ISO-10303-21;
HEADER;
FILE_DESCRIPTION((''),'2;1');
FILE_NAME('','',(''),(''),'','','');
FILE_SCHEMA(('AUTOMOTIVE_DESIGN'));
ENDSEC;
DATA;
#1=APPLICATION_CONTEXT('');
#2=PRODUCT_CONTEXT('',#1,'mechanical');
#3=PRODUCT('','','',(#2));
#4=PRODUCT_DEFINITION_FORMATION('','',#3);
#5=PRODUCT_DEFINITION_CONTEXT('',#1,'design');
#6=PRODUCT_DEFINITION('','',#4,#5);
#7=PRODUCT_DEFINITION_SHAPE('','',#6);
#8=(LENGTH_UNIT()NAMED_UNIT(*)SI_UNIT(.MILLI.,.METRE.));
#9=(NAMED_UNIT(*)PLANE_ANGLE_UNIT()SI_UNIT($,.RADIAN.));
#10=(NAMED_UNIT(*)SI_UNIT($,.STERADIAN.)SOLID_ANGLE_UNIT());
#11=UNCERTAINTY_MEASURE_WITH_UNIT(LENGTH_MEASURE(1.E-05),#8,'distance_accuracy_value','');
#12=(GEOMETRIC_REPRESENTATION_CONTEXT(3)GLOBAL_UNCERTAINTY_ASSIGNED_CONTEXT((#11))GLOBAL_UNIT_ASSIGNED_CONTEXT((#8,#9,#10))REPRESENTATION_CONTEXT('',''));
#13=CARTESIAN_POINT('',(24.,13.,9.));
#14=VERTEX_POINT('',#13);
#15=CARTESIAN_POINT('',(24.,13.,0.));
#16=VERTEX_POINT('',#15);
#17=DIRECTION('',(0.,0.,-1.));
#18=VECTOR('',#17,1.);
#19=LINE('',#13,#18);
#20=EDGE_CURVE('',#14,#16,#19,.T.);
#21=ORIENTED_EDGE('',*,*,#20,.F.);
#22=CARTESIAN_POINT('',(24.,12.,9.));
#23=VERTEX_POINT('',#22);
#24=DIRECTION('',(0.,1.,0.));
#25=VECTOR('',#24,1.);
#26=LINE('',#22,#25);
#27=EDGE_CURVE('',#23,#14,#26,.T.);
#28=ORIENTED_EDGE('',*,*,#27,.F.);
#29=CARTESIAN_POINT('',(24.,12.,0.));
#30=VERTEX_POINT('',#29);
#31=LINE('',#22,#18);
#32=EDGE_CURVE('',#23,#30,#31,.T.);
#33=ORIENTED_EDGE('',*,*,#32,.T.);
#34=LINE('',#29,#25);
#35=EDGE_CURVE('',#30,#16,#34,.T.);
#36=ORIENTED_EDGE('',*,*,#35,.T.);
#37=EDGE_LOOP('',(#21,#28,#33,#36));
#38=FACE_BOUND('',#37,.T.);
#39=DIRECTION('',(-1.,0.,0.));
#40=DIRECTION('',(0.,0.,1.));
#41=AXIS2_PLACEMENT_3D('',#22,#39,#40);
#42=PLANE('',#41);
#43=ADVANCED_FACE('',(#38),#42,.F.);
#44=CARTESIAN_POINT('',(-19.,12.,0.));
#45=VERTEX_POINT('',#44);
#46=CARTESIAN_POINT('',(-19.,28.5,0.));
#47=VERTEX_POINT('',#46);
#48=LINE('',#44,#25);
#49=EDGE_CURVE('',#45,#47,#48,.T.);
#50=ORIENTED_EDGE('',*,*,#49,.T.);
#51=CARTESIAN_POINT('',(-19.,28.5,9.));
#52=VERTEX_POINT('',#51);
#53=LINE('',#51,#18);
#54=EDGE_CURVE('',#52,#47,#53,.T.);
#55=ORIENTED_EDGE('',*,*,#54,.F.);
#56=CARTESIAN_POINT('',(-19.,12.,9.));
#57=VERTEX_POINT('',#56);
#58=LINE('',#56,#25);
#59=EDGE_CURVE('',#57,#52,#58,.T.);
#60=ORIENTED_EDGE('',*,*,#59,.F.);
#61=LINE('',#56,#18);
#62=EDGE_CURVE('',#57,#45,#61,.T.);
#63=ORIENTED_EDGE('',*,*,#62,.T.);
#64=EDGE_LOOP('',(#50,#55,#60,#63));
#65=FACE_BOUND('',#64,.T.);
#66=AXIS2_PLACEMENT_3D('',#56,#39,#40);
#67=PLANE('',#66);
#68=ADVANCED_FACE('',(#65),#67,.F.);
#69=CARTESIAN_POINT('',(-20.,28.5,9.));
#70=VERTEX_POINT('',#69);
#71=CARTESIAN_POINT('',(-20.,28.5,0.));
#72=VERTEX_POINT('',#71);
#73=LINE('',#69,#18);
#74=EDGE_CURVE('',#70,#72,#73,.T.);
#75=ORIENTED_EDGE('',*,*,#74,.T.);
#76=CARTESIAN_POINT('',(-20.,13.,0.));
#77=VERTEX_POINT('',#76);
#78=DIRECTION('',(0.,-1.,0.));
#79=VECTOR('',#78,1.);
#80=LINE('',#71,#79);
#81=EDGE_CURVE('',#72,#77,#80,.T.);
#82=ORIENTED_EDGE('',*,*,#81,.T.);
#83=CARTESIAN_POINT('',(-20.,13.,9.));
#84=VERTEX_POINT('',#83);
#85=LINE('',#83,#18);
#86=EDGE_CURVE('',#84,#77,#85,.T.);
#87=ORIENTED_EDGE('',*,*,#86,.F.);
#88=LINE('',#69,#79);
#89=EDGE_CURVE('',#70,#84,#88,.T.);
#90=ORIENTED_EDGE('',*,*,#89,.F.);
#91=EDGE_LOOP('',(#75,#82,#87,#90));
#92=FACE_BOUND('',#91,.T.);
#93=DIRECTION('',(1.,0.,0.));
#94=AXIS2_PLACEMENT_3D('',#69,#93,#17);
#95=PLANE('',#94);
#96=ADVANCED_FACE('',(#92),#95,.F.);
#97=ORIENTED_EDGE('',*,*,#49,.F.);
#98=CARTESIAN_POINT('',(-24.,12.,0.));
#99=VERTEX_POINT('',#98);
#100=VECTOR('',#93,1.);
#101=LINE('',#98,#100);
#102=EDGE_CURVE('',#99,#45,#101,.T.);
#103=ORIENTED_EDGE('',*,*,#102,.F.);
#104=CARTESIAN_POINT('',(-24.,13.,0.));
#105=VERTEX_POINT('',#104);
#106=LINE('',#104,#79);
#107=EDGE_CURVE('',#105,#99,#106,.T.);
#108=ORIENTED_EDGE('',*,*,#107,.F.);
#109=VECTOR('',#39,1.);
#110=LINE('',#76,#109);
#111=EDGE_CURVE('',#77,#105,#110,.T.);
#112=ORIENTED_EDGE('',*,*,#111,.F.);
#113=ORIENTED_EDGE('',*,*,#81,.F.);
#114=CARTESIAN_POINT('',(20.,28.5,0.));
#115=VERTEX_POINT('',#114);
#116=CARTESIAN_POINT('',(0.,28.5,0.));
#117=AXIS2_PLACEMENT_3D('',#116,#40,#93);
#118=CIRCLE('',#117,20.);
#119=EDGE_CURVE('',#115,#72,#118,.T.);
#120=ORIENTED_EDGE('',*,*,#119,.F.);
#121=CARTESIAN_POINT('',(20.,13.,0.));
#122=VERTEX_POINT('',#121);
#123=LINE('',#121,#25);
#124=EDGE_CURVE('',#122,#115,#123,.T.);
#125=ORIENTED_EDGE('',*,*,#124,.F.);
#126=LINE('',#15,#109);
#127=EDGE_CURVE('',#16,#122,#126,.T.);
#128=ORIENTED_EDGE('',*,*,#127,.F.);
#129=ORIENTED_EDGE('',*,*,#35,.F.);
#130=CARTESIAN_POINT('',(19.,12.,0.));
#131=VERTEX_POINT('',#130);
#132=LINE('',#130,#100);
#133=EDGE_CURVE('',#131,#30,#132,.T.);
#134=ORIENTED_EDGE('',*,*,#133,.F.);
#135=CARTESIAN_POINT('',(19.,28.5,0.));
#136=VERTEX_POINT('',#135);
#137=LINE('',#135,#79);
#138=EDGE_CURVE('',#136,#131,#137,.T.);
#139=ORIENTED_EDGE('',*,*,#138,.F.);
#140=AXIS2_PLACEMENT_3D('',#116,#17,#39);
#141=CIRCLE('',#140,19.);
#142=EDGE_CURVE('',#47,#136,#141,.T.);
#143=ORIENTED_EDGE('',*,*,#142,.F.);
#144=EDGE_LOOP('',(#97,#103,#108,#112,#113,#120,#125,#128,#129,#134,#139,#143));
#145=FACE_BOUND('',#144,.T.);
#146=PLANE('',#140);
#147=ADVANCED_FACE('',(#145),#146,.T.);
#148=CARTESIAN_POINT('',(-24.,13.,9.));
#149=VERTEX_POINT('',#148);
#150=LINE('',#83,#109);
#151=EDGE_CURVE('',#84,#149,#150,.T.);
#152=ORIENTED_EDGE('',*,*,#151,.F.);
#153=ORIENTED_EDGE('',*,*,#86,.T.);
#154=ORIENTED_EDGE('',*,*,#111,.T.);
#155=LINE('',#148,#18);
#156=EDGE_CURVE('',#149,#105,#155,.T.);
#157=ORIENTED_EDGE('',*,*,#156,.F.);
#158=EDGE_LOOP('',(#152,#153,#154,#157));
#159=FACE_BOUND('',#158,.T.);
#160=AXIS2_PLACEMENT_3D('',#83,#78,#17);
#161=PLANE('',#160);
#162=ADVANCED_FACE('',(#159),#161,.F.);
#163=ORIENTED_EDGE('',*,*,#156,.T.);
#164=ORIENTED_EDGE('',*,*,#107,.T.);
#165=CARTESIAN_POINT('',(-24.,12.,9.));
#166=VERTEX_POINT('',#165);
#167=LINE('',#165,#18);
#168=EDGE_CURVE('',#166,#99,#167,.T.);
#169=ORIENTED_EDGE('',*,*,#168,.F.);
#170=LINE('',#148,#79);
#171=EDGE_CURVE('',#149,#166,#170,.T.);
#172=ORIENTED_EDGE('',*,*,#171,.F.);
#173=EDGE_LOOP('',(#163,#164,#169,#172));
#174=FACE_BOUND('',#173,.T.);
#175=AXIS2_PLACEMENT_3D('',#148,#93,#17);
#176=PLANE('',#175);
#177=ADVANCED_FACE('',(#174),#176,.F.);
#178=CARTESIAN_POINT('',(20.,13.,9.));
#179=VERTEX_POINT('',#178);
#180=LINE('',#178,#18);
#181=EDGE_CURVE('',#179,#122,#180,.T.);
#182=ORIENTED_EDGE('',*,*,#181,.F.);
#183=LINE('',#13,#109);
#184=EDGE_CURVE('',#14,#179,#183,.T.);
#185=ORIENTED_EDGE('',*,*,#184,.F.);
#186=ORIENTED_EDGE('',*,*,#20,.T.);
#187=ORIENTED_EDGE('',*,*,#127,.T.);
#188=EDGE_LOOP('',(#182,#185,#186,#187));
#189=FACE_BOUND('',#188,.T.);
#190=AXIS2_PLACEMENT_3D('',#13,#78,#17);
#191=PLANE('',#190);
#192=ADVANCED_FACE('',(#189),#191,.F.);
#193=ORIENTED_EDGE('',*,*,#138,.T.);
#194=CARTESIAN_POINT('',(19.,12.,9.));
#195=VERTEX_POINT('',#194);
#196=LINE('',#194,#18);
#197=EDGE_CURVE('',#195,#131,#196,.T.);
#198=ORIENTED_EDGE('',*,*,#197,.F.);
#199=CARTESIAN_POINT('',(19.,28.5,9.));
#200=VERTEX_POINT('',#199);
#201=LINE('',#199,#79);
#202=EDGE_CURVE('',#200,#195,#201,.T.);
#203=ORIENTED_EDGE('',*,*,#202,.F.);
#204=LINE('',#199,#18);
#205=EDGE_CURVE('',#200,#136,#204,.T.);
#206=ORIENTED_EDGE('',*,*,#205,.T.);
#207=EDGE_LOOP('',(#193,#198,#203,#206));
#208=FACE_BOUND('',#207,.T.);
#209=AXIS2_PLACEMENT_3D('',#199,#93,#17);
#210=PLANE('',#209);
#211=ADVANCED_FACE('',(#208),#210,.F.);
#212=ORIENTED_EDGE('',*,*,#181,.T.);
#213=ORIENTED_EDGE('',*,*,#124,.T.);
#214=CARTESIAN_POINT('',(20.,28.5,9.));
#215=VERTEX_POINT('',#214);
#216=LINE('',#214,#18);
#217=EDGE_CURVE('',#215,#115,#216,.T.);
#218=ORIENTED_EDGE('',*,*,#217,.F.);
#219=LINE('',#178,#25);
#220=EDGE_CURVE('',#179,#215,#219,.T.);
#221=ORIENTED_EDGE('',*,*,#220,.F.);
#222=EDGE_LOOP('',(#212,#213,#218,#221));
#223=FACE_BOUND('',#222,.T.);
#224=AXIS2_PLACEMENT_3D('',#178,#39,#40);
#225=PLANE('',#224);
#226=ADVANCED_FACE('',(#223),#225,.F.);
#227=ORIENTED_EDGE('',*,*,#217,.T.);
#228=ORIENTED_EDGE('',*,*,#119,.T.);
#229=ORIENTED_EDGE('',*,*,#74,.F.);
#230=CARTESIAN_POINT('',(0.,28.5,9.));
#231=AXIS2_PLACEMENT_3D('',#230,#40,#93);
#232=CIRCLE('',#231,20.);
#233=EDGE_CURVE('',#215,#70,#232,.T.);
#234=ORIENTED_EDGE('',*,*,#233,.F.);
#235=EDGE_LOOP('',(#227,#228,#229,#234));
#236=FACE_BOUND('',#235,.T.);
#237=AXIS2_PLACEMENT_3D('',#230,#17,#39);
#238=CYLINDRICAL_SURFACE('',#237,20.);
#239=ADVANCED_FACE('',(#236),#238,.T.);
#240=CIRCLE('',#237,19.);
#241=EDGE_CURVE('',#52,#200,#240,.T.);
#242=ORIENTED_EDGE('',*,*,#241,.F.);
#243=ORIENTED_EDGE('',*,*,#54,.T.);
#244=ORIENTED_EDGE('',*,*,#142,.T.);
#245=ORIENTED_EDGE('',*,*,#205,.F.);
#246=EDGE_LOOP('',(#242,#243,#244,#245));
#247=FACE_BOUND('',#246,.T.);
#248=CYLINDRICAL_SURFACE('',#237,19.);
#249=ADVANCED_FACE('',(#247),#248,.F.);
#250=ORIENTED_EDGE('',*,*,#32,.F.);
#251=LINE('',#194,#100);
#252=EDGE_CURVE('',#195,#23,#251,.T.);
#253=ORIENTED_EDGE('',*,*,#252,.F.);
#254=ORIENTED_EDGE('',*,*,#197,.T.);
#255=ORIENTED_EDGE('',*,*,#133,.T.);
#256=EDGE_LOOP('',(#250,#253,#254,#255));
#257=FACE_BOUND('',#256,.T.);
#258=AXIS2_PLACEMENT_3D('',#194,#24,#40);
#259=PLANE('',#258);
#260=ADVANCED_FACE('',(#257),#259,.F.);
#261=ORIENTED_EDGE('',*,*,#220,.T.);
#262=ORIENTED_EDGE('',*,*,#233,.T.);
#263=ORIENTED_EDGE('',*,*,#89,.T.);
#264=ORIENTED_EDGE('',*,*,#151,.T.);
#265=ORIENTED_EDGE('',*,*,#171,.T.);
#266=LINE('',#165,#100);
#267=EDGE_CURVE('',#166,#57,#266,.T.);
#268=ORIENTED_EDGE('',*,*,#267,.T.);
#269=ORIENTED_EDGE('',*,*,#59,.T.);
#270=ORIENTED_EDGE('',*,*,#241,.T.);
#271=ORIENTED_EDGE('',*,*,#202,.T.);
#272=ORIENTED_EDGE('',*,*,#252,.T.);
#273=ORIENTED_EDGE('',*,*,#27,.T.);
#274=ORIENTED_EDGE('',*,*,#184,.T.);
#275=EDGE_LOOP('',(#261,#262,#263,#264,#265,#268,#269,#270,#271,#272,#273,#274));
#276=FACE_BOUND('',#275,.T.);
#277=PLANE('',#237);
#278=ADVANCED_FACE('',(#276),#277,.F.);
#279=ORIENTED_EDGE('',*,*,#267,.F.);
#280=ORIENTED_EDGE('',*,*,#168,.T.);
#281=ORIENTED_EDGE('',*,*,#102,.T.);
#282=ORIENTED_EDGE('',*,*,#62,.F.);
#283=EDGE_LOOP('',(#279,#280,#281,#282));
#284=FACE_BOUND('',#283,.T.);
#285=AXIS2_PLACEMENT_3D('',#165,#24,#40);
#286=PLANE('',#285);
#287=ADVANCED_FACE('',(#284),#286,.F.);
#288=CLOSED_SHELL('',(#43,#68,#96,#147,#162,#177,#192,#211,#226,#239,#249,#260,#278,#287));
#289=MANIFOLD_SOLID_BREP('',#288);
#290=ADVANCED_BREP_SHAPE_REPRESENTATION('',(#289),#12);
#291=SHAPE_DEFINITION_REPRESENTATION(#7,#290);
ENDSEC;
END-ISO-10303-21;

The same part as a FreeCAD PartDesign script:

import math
import FreeCAD as App
import Part
import Sketcher

V = App.Vector

doc = App.newDocument("Part")
body = doc.addObject("PartDesign::Body", "Body")

# Sketch on XY plane
sketch1 = body.newObject("Sketcher::SketchObject", "Sketch")
sketch1.AttachmentSupport = (doc.getObject("XY_Plane"), [""])
sketch1.MapMode = "FlatFace"
sketch1.addGeometry([
    Part.LineSegment(V(19, 28.5, 0), V(19, 12, 0)),  # 0
    Part.LineSegment(V(19, 12, 0), V(24, 12, 0)),  # 1
    Part.LineSegment(V(24, 12, 0), V(24, 13, 0)),  # 2
    Part.LineSegment(V(24, 13, 0), V(20, 13, 0)),  # 3
    Part.LineSegment(V(20, 13, 0), V(20, 28.5, 0)),  # 4
    Part.ArcOfCircle(Part.Circle(V(0, 28.5, 0), V(0, 0, 1), 20), math.radians(0), math.radians(180)),  # 5
    Part.LineSegment(V(-20, 28.5, 0), V(-20, 13, 0)),  # 6
    Part.LineSegment(V(-20, 13, 0), V(-24, 13, 0)),  # 7
    Part.LineSegment(V(-24, 13, 0), V(-24, 12, 0)),  # 8
    Part.LineSegment(V(-24, 12, 0), V(-19, 12, 0)),  # 9
    Part.LineSegment(V(-19, 12, 0), V(-19, 28.5, 0)),  # 10
    Part.ArcOfCircle(Part.Circle(V(0, 28.5, 0), V(0, 0, 1), 19), math.radians(0), math.radians(180)),  # 11
], False)
sketch1.addConstraint([
    Sketcher.Constraint("Coincident", 0, 2, 1, 1),
    Sketcher.Constraint("Coincident", 1, 2, 2, 1),
    Sketcher.Constraint("Coincident", 2, 2, 3, 1),
    Sketcher.Constraint("Coincident", 3, 2, 4, 1),
    Sketcher.Constraint("Tangent", 4, 2, 5, 1),
    Sketcher.Constraint("Tangent", 5, 2, 6, 1),
    Sketcher.Constraint("Coincident", 6, 2, 7, 1),
    Sketcher.Constraint("Coincident", 7, 2, 8, 1),
    Sketcher.Constraint("Coincident", 8, 2, 9, 1),
    Sketcher.Constraint("Coincident", 9, 2, 10, 1),
    Sketcher.Constraint("Tangent", 10, 2, 11, 2),
    Sketcher.Constraint("Tangent", 11, 1, 0, 1),
    Sketcher.Constraint("Vertical", 0),
    Sketcher.Constraint("Horizontal", 1),
    Sketcher.Constraint("Vertical", 2),
    Sketcher.Constraint("Horizontal", 3),
    Sketcher.Constraint("Vertical", 4),
    Sketcher.Constraint("Vertical", 6),
    Sketcher.Constraint("Horizontal", 7),
    Sketcher.Constraint("Vertical", 8),
    Sketcher.Constraint("Horizontal", 9),
    Sketcher.Constraint("Vertical", 10),
    Sketcher.Constraint("Coincident", 11, 3, 5, 3),
    Sketcher.Constraint("Symmetric", 3, 2, 6, 2, -2),
    Sketcher.Constraint("Symmetric", 1, 2, 8, 2, -2),
    Sketcher.Constraint("Radius", 5, 20.0),
    Sketcher.Constraint("Radius", 11, 19.0),
    Sketcher.Constraint("DistanceX", 1, 1, 1, 2, 5.0),
    Sketcher.Constraint("DistanceY", 2, 1, 2, 2, 1.0),
    Sketcher.Constraint("DistanceY", 0, 2, 0, 1, 16.5),
    Sketcher.Constraint("DistanceY", -1, 1, 0, 2, 12.0),
])
pad1 = body.newObject("PartDesign::Pad", "Pad")
pad1.Profile = sketch1
pad1.Length = 9

doc.recompute()
